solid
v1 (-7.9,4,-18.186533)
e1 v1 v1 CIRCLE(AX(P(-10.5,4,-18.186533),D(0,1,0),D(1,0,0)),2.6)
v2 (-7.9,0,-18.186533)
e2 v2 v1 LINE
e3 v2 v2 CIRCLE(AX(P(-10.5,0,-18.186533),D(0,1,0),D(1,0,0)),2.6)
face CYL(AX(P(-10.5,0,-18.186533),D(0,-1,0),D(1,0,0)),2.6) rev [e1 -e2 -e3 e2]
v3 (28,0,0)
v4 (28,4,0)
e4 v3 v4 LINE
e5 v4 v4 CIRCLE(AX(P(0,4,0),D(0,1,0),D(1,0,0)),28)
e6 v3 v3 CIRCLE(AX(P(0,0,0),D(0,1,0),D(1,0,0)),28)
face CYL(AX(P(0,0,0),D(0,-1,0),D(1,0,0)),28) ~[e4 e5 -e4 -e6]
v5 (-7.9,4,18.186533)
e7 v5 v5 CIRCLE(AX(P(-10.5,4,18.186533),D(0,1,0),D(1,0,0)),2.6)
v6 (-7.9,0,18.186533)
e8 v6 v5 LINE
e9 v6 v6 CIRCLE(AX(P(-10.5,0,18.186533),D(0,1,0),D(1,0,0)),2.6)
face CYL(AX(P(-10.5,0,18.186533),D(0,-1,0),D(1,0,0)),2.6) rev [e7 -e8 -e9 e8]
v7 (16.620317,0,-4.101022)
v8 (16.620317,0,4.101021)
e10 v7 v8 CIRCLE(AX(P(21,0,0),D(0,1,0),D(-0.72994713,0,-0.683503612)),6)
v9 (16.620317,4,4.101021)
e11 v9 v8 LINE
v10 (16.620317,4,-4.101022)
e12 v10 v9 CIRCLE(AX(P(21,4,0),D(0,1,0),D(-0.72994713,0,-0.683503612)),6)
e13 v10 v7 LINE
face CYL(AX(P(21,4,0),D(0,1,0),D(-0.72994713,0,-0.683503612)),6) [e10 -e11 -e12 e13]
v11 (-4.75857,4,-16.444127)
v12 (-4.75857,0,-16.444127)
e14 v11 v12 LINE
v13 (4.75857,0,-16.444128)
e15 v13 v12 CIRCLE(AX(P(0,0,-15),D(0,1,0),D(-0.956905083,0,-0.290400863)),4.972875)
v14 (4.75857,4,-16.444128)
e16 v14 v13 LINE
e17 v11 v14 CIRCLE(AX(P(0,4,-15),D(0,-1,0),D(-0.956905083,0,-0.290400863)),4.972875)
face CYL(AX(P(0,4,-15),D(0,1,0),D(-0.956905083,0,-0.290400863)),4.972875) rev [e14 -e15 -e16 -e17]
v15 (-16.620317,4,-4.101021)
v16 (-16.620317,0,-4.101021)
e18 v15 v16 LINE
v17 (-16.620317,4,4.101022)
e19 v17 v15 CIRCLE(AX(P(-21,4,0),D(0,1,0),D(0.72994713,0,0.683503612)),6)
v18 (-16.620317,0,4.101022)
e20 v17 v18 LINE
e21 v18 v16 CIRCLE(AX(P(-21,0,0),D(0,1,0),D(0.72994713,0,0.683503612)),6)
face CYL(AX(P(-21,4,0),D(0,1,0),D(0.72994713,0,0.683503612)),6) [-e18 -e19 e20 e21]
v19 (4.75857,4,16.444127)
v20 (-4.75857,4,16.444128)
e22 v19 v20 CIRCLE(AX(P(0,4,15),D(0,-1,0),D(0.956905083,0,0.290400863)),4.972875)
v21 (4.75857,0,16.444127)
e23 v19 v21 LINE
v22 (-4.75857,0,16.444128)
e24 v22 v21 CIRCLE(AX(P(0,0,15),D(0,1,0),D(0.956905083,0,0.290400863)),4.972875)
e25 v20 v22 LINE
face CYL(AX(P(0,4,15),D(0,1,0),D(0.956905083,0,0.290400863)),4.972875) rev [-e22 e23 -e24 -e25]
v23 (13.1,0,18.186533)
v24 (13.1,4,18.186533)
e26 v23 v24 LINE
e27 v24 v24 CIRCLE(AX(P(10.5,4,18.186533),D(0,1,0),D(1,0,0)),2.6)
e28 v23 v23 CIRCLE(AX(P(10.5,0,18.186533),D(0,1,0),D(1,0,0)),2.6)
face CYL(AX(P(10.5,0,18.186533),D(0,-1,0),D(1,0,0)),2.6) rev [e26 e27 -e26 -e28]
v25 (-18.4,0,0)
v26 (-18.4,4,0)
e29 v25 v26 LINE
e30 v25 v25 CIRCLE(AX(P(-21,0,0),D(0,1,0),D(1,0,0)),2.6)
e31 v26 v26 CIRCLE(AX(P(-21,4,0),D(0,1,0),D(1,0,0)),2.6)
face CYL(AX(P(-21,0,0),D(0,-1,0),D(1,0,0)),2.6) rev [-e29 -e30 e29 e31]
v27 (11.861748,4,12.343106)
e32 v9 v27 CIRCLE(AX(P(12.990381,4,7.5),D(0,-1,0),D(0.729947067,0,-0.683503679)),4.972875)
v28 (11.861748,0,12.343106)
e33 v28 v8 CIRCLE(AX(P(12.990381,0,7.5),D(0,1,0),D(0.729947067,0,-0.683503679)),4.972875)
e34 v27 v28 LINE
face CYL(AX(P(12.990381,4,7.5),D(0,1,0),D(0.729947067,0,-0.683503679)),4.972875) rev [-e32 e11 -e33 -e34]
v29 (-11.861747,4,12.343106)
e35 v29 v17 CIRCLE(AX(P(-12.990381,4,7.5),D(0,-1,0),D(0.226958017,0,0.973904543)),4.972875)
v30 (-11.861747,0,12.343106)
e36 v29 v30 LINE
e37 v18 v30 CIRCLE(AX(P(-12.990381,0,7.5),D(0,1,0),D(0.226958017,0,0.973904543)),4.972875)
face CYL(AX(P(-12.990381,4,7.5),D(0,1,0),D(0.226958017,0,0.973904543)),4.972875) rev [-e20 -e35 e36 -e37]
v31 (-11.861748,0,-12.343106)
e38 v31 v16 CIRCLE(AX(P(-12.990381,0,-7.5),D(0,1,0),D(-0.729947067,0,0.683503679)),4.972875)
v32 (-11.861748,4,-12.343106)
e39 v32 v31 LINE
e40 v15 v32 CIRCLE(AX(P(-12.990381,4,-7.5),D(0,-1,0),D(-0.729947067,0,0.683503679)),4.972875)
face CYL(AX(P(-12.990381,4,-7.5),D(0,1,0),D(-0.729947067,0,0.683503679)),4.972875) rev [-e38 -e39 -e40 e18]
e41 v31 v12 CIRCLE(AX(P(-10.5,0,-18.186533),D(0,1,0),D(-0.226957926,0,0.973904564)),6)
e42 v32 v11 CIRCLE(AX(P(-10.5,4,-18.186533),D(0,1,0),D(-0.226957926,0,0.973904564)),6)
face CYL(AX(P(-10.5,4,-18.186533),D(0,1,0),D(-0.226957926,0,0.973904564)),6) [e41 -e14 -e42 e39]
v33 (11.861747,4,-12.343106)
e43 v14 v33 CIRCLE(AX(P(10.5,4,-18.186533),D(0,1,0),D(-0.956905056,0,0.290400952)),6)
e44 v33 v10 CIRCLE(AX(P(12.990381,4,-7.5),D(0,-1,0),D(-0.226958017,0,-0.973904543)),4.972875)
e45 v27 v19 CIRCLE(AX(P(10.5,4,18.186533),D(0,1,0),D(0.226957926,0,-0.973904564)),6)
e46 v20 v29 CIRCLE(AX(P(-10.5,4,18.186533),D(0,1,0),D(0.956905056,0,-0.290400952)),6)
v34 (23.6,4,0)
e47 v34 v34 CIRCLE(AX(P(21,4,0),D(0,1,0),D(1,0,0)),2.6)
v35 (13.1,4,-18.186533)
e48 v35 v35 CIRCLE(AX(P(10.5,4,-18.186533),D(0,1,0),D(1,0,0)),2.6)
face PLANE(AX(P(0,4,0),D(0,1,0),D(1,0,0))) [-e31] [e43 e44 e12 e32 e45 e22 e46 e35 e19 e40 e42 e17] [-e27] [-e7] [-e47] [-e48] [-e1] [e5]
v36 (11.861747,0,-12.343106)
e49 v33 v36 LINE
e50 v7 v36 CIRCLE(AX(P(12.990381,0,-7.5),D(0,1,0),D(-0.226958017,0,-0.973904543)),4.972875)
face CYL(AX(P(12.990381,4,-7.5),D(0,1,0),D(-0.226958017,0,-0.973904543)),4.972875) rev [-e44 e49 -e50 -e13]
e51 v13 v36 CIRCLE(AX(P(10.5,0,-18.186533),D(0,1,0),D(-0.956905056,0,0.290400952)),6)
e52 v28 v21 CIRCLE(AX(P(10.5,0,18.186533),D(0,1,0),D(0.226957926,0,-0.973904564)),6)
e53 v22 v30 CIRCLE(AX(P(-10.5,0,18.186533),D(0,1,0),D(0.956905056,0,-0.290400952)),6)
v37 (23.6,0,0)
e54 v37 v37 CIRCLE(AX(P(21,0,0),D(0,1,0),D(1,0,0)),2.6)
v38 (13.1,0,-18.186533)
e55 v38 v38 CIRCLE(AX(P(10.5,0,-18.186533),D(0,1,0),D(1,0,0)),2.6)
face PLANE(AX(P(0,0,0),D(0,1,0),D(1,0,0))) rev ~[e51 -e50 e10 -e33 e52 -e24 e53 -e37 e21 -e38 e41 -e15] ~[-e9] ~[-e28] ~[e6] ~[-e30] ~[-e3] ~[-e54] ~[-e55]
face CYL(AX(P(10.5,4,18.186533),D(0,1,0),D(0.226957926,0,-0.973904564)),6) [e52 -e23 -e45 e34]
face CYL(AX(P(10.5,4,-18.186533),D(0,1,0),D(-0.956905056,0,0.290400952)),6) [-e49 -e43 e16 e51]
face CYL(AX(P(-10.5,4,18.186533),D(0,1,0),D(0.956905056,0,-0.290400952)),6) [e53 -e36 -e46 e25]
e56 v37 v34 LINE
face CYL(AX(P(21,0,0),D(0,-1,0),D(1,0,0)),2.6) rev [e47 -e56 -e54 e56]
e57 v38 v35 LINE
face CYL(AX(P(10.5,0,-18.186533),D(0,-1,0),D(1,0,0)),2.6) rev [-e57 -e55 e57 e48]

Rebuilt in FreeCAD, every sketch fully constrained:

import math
import FreeCAD as App
import Part
import Sketcher

V = App.Vector
Q = App.Units.Quantity

doc = App.newDocument("Part")
body = doc.addObject("PartDesign::Body", "Body")

sketch1 = body.newObject("Sketcher::SketchObject", "Sketch")
sketch1.AttachmentSupport = (doc.getObject("XZ_Plane"), [""])
sketch1.MapMode = "FlatFace"
sketch1.addGeometry([
    Part.Circle(V(0, 0, 0), V(0, 0, 1), 28),
    Part.Circle(V(-10.5, 18.2, 0), V(0, 0, 1), 2.6),
    Part.Circle(V(10.5, 18.2, 0), V(0, 0, 1), 2.6),
    Part.Circle(V(-21, 0, 0), V(0, 0, 1), 2.6),
    Part.Circle(V(-10.5, -18.2, 0), V(0, 0, 1), 2.6),
    Part.Circle(V(21, 0, 0), V(0, 0, 1), 2.6),
    Part.Circle(V(10.5, -18.2, 0), V(0, 0, 1), 2.6),
], False)
sketch1.addConstraint([
    Sketcher.Constraint("Coincident", 0, 3, -1, 1),
    Sketcher.Constraint("Equal", 1, 2),
    Sketcher.Constraint("Equal", 2, 3),
    Sketcher.Constraint("Equal", 3, 4),
    Sketcher.Constraint("Equal", 4, 5),
    Sketcher.Constraint("Equal", 5, 6),
    Sketcher.Constraint("Symmetric", 2, 3, 4, 3, -1, 1),
    Sketcher.Constraint("Symmetric", 3, 3, 5, 3, -1, 1),
    Sketcher.Constraint("Symmetric", 1, 3, 6, 3, -1, 1),
    Sketcher.Constraint("Symmetric", 1, 3, 2, 3, -2),
    Sketcher.Constraint("PointOnObject", 3, 3, -1),
    Sketcher.Constraint("Diameter", 0, Q("56 mm")),
    Sketcher.Constraint("Diameter", 1, Q("5.2 mm")),
    Sketcher.Constraint("DistanceX", 3, 3, -1, 1, Q("21 mm")),
    Sketcher.Constraint("DistanceX", 1, 3, 2, 3, Q("21 mm")),
    Sketcher.Constraint("DistanceY", -1, 1, 1, 3, Q("18.186533 mm")),
])
pad1 = body.newObject("PartDesign::Pad", "Pad")
pad1.Profile = sketch1
pad1.Length = 4
pad1.Reversed = True

sketch2 = body.newObject("Sketcher::SketchObject", "Sketch001")
sketch2.AttachmentSupport = (doc.getObject("XZ_Plane"), [""])
sketch2.MapMode = "FlatFace"
sketch2.AttachmentOffset = App.Placement(V(0, 0, -4), App.Rotation())
sketch2.addGeometry([
    Part.ArcOfCircle(Part.Circle(V(10.5, -18.2, 0), V(0, 0, 1), 6), math.radians(77), math.radians(163)),
    Part.ArcOfCircle(Part.Circle(V(0, -15, 0), V(0, 0, 1), 5), math.radians(-163), math.radians(-17)),
    Part.ArcOfCircle(Part.Circle(V(-10.5, -18.2, 0), V(0, 0, 1), 6), math.radians(17), math.radians(103)),
    Part.ArcOfCircle(Part.Circle(V(-13, -7.5, 0), V(0, 0, 1), 5), math.radians(137), math.radians(283)),
    Part.ArcOfCircle(Part.Circle(V(-21, 0, 0), V(0, 0, 1), 6), math.radians(-43), math.radians(43)),
    Part.ArcOfCircle(Part.Circle(V(-13, 7.5, 0), V(0, 0, 1), 5), math.radians(77), math.radians(223)),
    Part.ArcOfCircle(Part.Circle(V(-10.5, 18.2, 0), V(0, 0, 1), 6), math.radians(-103), math.radians(-17)),
    Part.ArcOfCircle(Part.Circle(V(0, 15, 0), V(0, 0, 1), 5), math.radians(17), math.radians(163)),
    Part.ArcOfCircle(Part.Circle(V(10.5, 18.2, 0), V(0, 0, 1), 6), math.radians(-163), math.radians(-77)),
    Part.ArcOfCircle(Part.Circle(V(13, 7.5, 0), V(0, 0, 1), 5), math.radians(-43), math.radians(103)),
    Part.ArcOfCircle(Part.Circle(V(21, 0, 0), V(0, 0, 1), 6), math.radians(137), math.radians(223)),
    Part.ArcOfCircle(Part.Circle(V(13, -7.5, 0), V(0, 0, 1), 5), math.radians(-103), math.radians(43)),
], False)
sketch2.addConstraint([
    Sketcher.Constraint("Tangent", 0, 2, 1, 2),
    Sketcher.Constraint("Tangent", 1, 1, 2, 1),
    Sketcher.Constraint("Tangent", 2, 2, 3, 2),
    Sketcher.Constraint("Tangent", 3, 1, 4, 1),
    Sketcher.Constraint("Tangent", 4, 2, 5, 2),
    Sketcher.Constraint("Tangent", 5, 1, 6, 1),
    Sketcher.Constraint("Tangent", 6, 2, 7, 2),
    Sketcher.Constraint("Tangent", 7, 1, 8, 1),
    Sketcher.Constraint("Tangent", 8, 2, 9, 2),
    Sketcher.Constraint("Tangent", 9, 1, 10, 1),
    Sketcher.Constraint("Tangent", 10, 2, 11, 2),
    Sketcher.Constraint("Tangent", 11, 1, 0, 1),
    Sketcher.Constraint("Equal", 0, 2),
    Sketcher.Constraint("Equal", 1, 3),
    Sketcher.Constraint("Equal", 2, 4),
    Sketcher.Constraint("Equal", 3, 5),
    Sketcher.Constraint("Equal", 4, 6),
    Sketcher.Constraint("Equal", 5, 7),
    Sketcher.Constraint("Equal", 6, 8),
    Sketcher.Constraint("Equal", 7, 9),
    Sketcher.Constraint("Equal", 8, 10),
    Sketcher.Constraint("Equal", 9, 11),
    Sketcher.Constraint("Symmetric", 0, 3, 6, 3, -1, 1),
    Sketcher.Constraint("Symmetric", 2, 3, 8, 3, -1, 1),
    Sketcher.Constraint("Symmetric", 4, 3, 10, 3, -1, 1),
    Sketcher.Constraint("Symmetric", 0, 3, 2, 3, -2),
    Sketcher.Constraint("PointOnObject", 4, 3, -1),
    Sketcher.Constraint("Radius", 0, Q("6 mm")),
    Sketcher.Constraint("DistanceY", 1, 3, -1, 1, Q("15 mm")),
    Sketcher.Constraint("DistanceX", 4, 3, -1, 1, Q("21 mm")),
    Sketcher.Constraint("DistanceX", 2, 3, 0, 3, Q("21 mm")),
    Sketcher.Constraint("DistanceY", 3, 3, 5, 3, Q("15 mm")),
])
pocket1 = body.newObject("PartDesign::Pocket", "Pocket")
pocket1.Profile = sketch2
pocket1.Type = "ThroughAll"
pocket1.Midplane = True

doc.recompute()
